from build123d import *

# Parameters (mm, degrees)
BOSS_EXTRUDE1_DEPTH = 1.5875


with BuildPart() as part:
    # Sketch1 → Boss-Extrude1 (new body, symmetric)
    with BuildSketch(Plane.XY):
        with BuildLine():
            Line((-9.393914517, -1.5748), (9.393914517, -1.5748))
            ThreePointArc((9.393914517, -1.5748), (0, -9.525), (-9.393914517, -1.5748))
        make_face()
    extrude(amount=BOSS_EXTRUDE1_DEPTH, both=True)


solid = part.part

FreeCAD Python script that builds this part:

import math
import FreeCAD as App
import Part
import Sketcher
from FreeCAD import Vector
Q = App.Units.Quantity

doc = App.newDocument("Part")
body = doc.addObject("PartDesign::Body", "Body")

# Sketch on XY plane
sketch1 = body.newObject("Sketcher::SketchObject", "Sketch")
sketch1.AttachmentSupport = (doc.getObject("XY_Plane"), [""])
sketch1.MapMode = "FlatFace"
sketch1.addGeometry([
    Part.LineSegment(Vector(9, -2, 0), Vector(-9, -2, 0)),
    Part.ArcOfCircle(Part.Circle(Vector(0, 0, 0), Vector(0, 0, 1), 10), math.radians(-170), math.radians(-10)),
], False)
sketch1.addConstraint([
    Sketcher.Constraint("Coincident", 0, 1, 1, 2),
    Sketcher.Constraint("Coincident", 1, 1, 0, 2),
    Sketcher.Constraint("Horizontal", 0),
    Sketcher.Constraint("Coincident", 1, 3, -1, 1),
    Sketcher.Constraint("Radius", 1, Q("0.375 in")),
    Sketcher.Constraint("DistanceY", 0, 1, -1, 1, Q("0.062 in")),
])
pad1 = body.newObject("PartDesign::Pad", "Pad")
pad1.Profile = sketch1
pad1.Length = Q("0.125 in")
pad1.Midplane = True

doc.recompute()
